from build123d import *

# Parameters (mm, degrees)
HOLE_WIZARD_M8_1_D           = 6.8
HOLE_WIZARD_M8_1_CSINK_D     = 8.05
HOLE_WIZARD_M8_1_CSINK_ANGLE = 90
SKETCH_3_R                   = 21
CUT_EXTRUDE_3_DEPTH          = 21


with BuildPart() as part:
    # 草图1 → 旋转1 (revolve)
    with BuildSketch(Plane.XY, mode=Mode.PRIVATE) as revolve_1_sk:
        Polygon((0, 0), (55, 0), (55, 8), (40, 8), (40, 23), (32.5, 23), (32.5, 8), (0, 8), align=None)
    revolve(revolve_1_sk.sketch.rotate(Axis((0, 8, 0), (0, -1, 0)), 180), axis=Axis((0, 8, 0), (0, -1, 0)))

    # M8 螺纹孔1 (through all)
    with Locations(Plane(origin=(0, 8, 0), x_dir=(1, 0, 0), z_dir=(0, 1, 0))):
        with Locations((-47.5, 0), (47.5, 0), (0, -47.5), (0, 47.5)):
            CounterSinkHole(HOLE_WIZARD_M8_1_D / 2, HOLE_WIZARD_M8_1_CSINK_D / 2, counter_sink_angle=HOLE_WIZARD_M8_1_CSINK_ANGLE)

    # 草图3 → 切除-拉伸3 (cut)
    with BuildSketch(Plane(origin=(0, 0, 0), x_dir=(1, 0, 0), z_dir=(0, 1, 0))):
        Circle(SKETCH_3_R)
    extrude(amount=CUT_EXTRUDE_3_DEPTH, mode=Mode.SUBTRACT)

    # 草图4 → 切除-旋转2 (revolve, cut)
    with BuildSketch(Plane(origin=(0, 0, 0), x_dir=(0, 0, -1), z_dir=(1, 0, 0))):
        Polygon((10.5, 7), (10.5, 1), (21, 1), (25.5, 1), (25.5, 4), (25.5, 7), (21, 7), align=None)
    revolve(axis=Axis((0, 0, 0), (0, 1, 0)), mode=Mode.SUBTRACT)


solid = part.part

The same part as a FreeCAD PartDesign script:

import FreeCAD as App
import Part
import Sketcher


def add_polygon(sketch, points):
    """Adds a closed chain of lines whose ends are joined by coincident constraints."""
    first, n = sketch.GeometryCount, len(points)
    for a, b in zip(points, points[1:] + points[:1]):
        sketch.addGeometry(Part.LineSegment(App.Vector(*a, 0), App.Vector(*b, 0)), False)
    for i in range(n):
        sketch.addConstraint(Sketcher.Constraint("Coincident", first + i, 2, first + (i + 1) % n, 1))

doc = App.newDocument("Part")
body = doc.addObject("PartDesign::Body", "Body")

# Sketch on XY plane
sketch1 = body.newObject("Sketcher::SketchObject", "Sketch")
sketch1.AttachmentSupport = (doc.getObject("XY_Plane"), [""])
sketch1.MapMode = "FlatFace"
add_polygon(sketch1, [(0, 0), (55, 0), (55, 8), (40, 8), (40, 23), (32, 23), (32, 8), (0, 8)])  # lines 0-7
sketch1.addConstraint([
    Sketcher.Constraint("Horizontal", 0),
    Sketcher.Constraint("Vertical", 1),
    Sketcher.Constraint("Horizontal", 2),
    Sketcher.Constraint("Vertical", 3),
    Sketcher.Constraint("Horizontal", 4),
    Sketcher.Constraint("Vertical", 5),
    Sketcher.Constraint("Horizontal", 6),
    Sketcher.Constraint("Vertical", 7),
    Sketcher.Constraint("Coincident", 7, 2, -1, 1),
    Sketcher.Constraint("Horizontal", 2, 2, 5, 2),
    Sketcher.Constraint("Equal", 2, 3),
    Sketcher.Constraint("DistanceX", 0, 1, 0, 2, 55.0),
    Sketcher.Constraint("DistanceX", 2, 2, 2, 1, 15.0),
    Sketcher.Constraint("DistanceY", 1, 1, 1, 2, 8.0),
    Sketcher.Constraint("DistanceX", 4, 2, 4, 1, 7.5),
])
revolution = body.newObject("PartDesign::Revolution", "Revolution")
revolution.Profile = sketch1
revolution.ReferenceAxis = (sketch1, ["V_Axis"])
revolution.Angle = 360

# Sketch on XZ plane
sketch2 = body.newObject("Sketcher::SketchObject", "Sketch001")
sketch2.AttachmentSupport = (doc.getObject("XZ_Plane"), [""])
sketch2.MapMode = "FlatFace"
sketch2.AttachmentOffset = App.Placement(App.Vector(0, 0, -8), App.Rotation())
sketch2.addGeometry([
    Part.Circle(App.Vector(-47.5, 0, 0), App.Vector(0, 0, 1), 3.4),
    Part.Circle(App.Vector(47.5, 0, 0), App.Vector(0, 0, 1), 3.4),
    Part.Circle(App.Vector(0, 47.5, 0), App.Vector(0, 0, 1), 3.4),
    Part.Circle(App.Vector(0, -47.5, 0), App.Vector(0, 0, 1), 3.4),
], False)
sketch2.addConstraint([
    Sketcher.Constraint("Equal", 0, 1),
    Sketcher.Constraint("Equal", 1, 2),
    Sketcher.Constraint("Equal", 2, 3),
    Sketcher.Constraint("Symmetric", 0, 3, 1, 3, -1, 1),
    Sketcher.Constraint("Symmetric", 2, 3, 3, 3, -1, 1),
    Sketcher.Constraint("PointOnObject", 0, 3, -1),
    Sketcher.Constraint("PointOnObject", 2, 3, -2),
    Sketcher.Constraint("Diameter", 0, 6.8),
    Sketcher.Constraint("DistanceX", 0, 3, 1, 3, 95.0),
    Sketcher.Constraint("DistanceY", 3, 3, 2, 3, 95.0),
])
doc.recompute()
hole = body.newObject("PartDesign::Hole", "Hole")
hole.Profile = sketch2
hole.ThreadType = "None"
hole.Diameter = 6.8
hole.DepthType = "ThroughAll"
hole.HoleCutType = "Countersink"
hole.HoleCutDiameter = 8.05
hole.HoleCutCountersinkAngle = 90
hole.Reversed = True

# Sketch on XZ plane
sketch3 = body.newObject("Sketcher::SketchObject", "Sketch002")
sketch3.AttachmentSupport = (doc.getObject("XZ_Plane"), [""])
sketch3.MapMode = "FlatFace"
sketch3.addGeometry(Part.Circle(App.Vector(0, 0, 0), App.Vector(0, 0, 1), 21), False)
sketch3.addConstraint([
    Sketcher.Constraint("Coincident", 0, 3, -1, 1),
    Sketcher.Constraint("Diameter", 0, 42.0),
])
pocket1 = body.newObject("PartDesign::Pocket", "Pocket")
pocket1.Profile = sketch3
pocket1.Length = 21

# Sketch on YZ plane
sketch4 = body.newObject("Sketcher::SketchObject", "Sketch003")
sketch4.AttachmentSupport = (doc.getObject("YZ_Plane"), [""])
sketch4.MapMode = "FlatFace"
add_polygon(sketch4, [(7, -10), (1, -10), (1, -26), (7, -26)])  # lines 0-3
sketch4.addConstraint([
    Sketcher.Constraint("Horizontal", 0),
    Sketcher.Constraint("Vertical", 1),
    Sketcher.Constraint("Horizontal", 2),
    Sketcher.Constraint("Vertical", 3),
    Sketcher.Constraint("DistanceX", 0, 2, 0, 1, 6.0),
    Sketcher.Constraint("DistanceY", 1, 2, 1, 1, 15.0),
    Sketcher.Constraint("DistanceX", -1, 1, 0, 2, 1.0),
    Sketcher.Constraint("DistanceY", 0, 2, -1, 1, 10.5),
])
groove = body.newObject("PartDesign::Groove", "Groove")
groove.Profile = sketch4
groove.ReferenceAxis = (sketch4, ["H_Axis"])
groove.Angle = 360

doc.recompute()
